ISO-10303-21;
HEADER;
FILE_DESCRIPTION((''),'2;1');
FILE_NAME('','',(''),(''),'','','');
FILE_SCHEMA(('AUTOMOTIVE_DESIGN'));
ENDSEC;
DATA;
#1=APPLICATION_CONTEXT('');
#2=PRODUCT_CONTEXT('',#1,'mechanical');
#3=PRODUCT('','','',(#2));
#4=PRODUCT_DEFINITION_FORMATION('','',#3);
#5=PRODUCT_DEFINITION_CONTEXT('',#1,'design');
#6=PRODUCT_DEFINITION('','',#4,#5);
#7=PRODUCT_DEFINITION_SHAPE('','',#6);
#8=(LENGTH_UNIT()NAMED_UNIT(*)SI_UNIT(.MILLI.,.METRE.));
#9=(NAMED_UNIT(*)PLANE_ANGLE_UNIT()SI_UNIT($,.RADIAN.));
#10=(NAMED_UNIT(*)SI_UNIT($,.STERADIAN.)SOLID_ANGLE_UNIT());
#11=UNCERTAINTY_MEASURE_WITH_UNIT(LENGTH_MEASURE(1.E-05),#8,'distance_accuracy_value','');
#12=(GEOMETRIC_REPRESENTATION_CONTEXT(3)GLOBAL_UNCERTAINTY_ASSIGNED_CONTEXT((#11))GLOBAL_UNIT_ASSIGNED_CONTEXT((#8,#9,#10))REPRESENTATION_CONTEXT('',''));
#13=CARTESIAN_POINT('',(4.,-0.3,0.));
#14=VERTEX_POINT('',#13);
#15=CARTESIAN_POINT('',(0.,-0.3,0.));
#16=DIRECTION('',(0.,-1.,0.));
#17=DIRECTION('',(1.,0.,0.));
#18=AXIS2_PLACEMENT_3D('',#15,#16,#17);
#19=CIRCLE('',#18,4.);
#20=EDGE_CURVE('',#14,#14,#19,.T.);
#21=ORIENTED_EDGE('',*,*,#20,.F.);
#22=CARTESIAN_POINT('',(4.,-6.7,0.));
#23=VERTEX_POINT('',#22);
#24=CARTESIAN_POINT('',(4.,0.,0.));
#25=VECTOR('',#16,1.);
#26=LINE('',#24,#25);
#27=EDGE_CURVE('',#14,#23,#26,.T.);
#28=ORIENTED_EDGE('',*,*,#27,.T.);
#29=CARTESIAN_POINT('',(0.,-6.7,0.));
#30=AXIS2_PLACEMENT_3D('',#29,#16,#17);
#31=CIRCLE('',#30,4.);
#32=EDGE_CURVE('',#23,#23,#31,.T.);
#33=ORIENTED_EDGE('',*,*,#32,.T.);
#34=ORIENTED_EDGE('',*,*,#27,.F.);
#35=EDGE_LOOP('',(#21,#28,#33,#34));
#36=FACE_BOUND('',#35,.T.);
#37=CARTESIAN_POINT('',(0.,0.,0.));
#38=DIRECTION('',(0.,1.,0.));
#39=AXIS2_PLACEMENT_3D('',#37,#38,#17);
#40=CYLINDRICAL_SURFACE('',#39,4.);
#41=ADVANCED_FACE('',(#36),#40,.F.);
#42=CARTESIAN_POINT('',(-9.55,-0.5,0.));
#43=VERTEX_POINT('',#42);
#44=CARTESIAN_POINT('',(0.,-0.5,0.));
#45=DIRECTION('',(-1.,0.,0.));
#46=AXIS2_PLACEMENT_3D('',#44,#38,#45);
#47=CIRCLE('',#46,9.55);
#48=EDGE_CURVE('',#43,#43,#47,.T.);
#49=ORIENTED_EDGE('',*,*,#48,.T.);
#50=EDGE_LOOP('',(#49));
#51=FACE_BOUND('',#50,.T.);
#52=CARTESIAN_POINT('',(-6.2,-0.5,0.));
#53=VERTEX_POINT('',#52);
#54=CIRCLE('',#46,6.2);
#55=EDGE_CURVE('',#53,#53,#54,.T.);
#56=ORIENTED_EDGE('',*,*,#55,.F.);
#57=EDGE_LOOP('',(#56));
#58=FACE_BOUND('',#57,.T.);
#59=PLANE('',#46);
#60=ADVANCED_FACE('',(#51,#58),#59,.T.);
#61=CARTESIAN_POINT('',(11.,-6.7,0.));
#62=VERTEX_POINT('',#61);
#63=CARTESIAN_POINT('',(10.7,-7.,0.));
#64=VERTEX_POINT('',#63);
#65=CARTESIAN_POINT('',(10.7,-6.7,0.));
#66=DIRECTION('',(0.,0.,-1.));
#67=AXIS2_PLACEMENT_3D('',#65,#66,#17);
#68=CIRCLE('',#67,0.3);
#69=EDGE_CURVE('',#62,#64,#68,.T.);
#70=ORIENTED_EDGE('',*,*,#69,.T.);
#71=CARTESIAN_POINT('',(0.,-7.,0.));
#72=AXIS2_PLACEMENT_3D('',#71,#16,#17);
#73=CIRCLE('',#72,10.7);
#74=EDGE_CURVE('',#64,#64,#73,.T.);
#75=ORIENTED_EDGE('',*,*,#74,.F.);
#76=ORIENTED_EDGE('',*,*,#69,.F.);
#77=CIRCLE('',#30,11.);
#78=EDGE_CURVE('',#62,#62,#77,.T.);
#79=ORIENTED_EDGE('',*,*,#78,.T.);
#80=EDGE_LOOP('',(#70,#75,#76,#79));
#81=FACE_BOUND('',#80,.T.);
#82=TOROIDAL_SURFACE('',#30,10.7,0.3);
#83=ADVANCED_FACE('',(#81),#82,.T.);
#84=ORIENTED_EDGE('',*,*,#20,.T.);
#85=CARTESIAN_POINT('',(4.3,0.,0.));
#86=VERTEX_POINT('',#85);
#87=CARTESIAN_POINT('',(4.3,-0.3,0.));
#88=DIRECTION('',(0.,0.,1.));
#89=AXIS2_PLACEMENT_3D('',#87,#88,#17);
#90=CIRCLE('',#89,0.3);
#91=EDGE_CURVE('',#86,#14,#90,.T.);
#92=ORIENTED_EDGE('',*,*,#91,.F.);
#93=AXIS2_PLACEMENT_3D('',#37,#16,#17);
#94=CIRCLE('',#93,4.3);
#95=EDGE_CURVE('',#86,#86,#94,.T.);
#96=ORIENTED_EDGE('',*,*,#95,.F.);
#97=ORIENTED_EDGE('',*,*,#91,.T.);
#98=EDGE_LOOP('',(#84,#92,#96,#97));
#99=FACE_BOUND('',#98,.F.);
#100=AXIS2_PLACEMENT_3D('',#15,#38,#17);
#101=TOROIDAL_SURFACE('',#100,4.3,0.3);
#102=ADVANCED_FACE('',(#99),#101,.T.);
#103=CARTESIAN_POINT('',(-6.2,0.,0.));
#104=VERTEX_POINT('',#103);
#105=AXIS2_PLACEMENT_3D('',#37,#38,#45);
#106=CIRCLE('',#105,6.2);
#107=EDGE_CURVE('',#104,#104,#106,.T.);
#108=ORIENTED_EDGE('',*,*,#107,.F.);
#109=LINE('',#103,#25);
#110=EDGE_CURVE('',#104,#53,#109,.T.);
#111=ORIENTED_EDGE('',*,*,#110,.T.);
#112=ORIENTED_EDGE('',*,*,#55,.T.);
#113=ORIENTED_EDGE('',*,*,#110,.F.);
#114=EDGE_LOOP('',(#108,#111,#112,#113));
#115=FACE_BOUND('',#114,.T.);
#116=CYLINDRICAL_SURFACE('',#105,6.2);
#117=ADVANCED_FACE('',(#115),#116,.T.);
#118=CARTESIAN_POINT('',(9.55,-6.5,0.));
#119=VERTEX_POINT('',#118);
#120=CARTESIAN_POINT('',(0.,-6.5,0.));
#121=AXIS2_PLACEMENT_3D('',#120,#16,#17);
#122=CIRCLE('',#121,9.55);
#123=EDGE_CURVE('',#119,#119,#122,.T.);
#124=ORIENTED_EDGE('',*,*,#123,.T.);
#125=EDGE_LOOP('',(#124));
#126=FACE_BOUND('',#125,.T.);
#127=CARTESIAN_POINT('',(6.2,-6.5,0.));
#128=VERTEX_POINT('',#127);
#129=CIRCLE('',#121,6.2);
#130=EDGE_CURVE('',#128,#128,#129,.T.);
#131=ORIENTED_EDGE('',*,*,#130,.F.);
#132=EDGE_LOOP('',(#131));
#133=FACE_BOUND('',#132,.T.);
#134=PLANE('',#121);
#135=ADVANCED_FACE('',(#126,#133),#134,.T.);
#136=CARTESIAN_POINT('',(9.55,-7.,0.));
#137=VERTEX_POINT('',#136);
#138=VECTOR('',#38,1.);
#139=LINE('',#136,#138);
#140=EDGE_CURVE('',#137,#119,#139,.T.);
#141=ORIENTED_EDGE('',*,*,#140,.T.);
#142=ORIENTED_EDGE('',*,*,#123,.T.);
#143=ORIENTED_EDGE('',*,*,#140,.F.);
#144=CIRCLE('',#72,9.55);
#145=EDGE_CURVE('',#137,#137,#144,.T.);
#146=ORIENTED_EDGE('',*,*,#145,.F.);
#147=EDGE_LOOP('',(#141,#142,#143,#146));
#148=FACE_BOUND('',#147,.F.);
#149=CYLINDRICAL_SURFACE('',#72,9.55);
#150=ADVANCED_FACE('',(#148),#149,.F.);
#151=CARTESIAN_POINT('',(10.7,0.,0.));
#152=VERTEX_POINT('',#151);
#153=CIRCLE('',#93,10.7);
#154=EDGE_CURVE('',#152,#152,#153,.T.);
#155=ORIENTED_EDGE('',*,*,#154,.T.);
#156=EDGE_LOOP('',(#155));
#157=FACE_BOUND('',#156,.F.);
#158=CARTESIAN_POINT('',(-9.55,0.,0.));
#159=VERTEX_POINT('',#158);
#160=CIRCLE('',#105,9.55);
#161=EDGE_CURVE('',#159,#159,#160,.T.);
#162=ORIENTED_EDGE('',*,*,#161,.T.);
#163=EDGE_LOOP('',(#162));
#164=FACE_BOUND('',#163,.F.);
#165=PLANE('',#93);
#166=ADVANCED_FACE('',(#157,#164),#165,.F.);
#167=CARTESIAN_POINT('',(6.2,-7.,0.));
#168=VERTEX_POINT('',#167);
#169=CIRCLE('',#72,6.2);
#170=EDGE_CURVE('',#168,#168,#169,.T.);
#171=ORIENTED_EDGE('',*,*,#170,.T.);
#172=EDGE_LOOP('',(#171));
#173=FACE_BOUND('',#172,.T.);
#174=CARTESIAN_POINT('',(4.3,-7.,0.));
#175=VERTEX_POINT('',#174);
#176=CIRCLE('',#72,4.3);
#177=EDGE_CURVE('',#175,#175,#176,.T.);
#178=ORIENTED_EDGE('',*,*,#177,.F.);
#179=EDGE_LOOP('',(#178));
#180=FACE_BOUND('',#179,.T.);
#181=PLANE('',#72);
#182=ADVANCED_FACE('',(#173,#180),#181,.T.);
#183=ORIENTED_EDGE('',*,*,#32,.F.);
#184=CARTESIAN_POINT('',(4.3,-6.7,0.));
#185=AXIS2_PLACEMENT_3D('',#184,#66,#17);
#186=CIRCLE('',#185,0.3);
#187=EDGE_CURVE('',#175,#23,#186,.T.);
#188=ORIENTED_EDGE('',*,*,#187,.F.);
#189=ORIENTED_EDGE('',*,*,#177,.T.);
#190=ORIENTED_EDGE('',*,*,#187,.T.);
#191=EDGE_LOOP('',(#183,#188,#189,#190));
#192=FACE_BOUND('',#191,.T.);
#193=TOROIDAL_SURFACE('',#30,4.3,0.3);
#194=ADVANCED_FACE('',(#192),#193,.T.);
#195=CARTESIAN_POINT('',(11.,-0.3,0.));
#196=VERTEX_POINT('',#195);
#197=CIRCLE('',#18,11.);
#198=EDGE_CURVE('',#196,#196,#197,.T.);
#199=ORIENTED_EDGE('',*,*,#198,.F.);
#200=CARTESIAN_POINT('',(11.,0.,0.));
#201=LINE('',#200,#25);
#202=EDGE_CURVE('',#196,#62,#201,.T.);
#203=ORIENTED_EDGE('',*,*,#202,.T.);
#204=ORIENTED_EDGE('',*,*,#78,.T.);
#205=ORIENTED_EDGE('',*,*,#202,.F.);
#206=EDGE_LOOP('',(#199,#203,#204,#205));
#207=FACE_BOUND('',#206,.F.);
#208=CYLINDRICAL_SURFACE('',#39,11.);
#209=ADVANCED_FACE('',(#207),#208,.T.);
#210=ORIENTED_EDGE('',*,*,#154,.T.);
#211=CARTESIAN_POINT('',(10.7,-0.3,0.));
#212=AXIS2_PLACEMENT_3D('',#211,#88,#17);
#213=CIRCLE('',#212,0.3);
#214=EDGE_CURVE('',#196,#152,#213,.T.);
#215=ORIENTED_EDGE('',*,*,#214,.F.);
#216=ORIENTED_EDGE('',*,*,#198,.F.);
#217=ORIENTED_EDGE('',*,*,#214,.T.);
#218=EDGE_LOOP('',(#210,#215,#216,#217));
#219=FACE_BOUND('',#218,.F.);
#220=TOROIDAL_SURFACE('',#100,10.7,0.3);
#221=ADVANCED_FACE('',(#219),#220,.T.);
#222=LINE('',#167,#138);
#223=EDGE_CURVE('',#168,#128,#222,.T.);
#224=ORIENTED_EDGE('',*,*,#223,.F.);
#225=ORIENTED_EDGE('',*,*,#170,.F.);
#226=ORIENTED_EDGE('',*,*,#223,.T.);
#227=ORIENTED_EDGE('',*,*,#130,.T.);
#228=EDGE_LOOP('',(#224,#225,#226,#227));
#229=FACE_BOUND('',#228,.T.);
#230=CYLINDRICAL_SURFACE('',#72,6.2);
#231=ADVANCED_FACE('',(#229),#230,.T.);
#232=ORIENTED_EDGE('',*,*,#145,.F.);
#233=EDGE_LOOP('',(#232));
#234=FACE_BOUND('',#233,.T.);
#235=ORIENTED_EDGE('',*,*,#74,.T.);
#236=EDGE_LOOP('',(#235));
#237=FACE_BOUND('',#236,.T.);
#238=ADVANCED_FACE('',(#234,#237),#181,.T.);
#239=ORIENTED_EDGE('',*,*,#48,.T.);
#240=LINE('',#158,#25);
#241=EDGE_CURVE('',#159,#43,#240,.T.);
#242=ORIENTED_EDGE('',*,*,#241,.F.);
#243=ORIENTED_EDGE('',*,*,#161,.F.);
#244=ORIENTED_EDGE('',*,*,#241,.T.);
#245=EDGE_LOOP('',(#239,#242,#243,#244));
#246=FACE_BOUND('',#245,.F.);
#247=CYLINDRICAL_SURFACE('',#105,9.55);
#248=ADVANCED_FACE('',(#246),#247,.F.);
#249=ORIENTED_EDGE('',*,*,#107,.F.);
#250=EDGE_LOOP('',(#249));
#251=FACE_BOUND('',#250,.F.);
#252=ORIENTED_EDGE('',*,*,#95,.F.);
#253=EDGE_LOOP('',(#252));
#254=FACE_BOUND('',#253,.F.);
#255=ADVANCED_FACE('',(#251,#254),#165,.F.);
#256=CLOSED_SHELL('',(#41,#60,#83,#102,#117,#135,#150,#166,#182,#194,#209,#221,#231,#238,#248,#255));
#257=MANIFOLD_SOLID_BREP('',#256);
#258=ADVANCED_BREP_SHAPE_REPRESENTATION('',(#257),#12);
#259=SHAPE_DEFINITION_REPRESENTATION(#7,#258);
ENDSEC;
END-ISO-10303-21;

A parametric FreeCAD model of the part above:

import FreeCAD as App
import Part
import Sketcher


def edges_at(feature, points):
    """Names of the edges that pass closest to the given points."""
    edges = feature.Shape.Edges
    near = lambda p: min(range(len(edges)), key=lambda i: edges[i].distToShape(Part.Vertex(*p))[0])
    return sorted({f"Edge{near(p) + 1}" for p in points})

doc = App.newDocument("Part")
params = doc.addObject("Spreadsheet::Sheet", "Params")
for row, (alias, value) in enumerate([
    ("sketch1_diameter", "22 mm"),
    ("sketch1_diameter2", "8 mm"),
    ("pad1_length", "7 mm"),
    ("sketch2_diameter", "19.1 mm"),
    ("sketch2_diameter2", "12.4 mm"),
    ("pocket1_length", "0.5 mm"),
    ("sketch3_diameter", "19.1 mm"),
    ("sketch3_diameter2", "12.4 mm"),
    ("pocket2_length", "0.5 mm"),
    ("fillet_radius", "0.3 mm"),
    ("fillet2_radius", "0.3 mm"),
    ("fillet3_radius", "0.3 mm"),
], start=1):
    params.set(f"A{row}", alias)
    params.set(f"B{row}", "=" + value)
    params.setAlias(f"B{row}", alias)

body = doc.addObject("PartDesign::Body", "Body")

sketch1 = body.newObject("Sketcher::SketchObject", "Sketch")
sketch1.AttachmentSupport = (doc.getObject("XZ_Plane"), [""])
sketch1.MapMode = "FlatFace"
sketch1.addGeometry(Part.Circle(App.Vector(0, 0, 0), App.Vector(0, 0, 1), 11), False)
sketch1.addGeometry(Part.Circle(App.Vector(0, 0, 0), App.Vector(0, 0, 1), 4), False)
sketch1.addConstraint(Sketcher.Constraint("Coincident", 0, 3, -1, 1))
sketch1.addConstraint(Sketcher.Constraint("Coincident", 1, 3, -1, 1))
sketch1.addConstraint(Sketcher.Constraint("Diameter", 0, 22.0))
sketch1.addConstraint(Sketcher.Constraint("Diameter", 1, 8.0))
sketch1.setExpression("Constraints[2]", "Params.sketch1_diameter")
sketch1.setExpression("Constraints[3]", "Params.sketch1_diameter2")
pad1 = body.newObject("PartDesign::Pad", "Pad")
pad1.Profile = sketch1
pad1.setExpression("Length", "Params.pad1_length")

sketch2 = body.newObject("Sketcher::SketchObject", "Sketch001")
sketch2.AttachmentSupport = (doc.getObject("XZ_Plane"), [""])
sketch2.MapMode = "FlatFace"
sketch2.addGeometry(Part.Circle(App.Vector(0, 0, 0), App.Vector(0, 0, 1), 10), False)
sketch2.addGeometry(Part.Circle(App.Vector(0, 0, 0), App.Vector(0, 0, 1), 6), False)
sketch2.addConstraint(Sketcher.Constraint("Coincident", 0, 3, -1, 1))
sketch2.addConstraint(Sketcher.Constraint("Coincident", 1, 3, -1, 1))
sketch2.addConstraint(Sketcher.Constraint("Diameter", 0, 19.1))
sketch2.addConstraint(Sketcher.Constraint("Diameter", 1, 12.4))
sketch2.setExpression("Constraints[2]", "Params.sketch2_diameter")
sketch2.setExpression("Constraints[3]", "Params.sketch2_diameter2")
pocket1 = body.newObject("PartDesign::Pocket", "Pocket")
pocket1.Profile = sketch2
pocket1.setExpression("Length", "Params.pocket1_length")
pocket1.Reversed = True

sketch3 = body.newObject("Sketcher::SketchObject", "Sketch002")
sketch3.AttachmentSupport = (doc.getObject("XZ_Plane"), [""])
sketch3.MapMode = "FlatFace"
sketch3.AttachmentOffset = App.Placement(App.Vector(0, 0, 7), App.Rotation())
sketch3.addGeometry(Part.Circle(App.Vector(0, 0, 0), App.Vector(0, 0, 1), 10), False)
sketch3.addGeometry(Part.Circle(App.Vector(0, 0, 0), App.Vector(0, 0, 1), 6), False)
sketch3.addConstraint(Sketcher.Constraint("Coincident", 0, 3, -1, 1))
sketch3.addConstraint(Sketcher.Constraint("Coincident", 1, 3, -1, 1))
sketch3.addConstraint(Sketcher.Constraint("Diameter", 0, 19.1))
sketch3.addConstraint(Sketcher.Constraint("Diameter", 1, 12.4))
sketch3.setExpression("Constraints[2]", "Params.sketch3_diameter")
sketch3.setExpression("Constraints[3]", "Params.sketch3_diameter2")
pocket2 = body.newObject("PartDesign::Pocket", "Pocket001")
pocket2.Profile = sketch3
pocket2.setExpression("Length", "Params.pocket2_length")
doc.recompute()

fillet = body.newObject("PartDesign::Fillet", "Fillet")
fillet.Base = (pocket2, edges_at(pocket2, [(-11, 0, 0)]))
fillet.setExpression("Radius", "Params.fillet_radius")
doc.recompute()

fillet2 = body.newObject("PartDesign::Fillet", "Fillet001")
fillet2.Base = (fillet, edges_at(fillet, [(-11, -7, 0), (-4, -7, 0)]))
fillet2.setExpression("Radius", "Params.fillet2_radius")
doc.recompute()

fillet3 = body.newObject("PartDesign::Fillet", "Fillet002")
fillet3.Base = (fillet2, edges_at(fillet2, [(-4, 0, 0)]))
fillet3.setExpression("Radius", "Params.fillet3_radius")

doc.recompute()
